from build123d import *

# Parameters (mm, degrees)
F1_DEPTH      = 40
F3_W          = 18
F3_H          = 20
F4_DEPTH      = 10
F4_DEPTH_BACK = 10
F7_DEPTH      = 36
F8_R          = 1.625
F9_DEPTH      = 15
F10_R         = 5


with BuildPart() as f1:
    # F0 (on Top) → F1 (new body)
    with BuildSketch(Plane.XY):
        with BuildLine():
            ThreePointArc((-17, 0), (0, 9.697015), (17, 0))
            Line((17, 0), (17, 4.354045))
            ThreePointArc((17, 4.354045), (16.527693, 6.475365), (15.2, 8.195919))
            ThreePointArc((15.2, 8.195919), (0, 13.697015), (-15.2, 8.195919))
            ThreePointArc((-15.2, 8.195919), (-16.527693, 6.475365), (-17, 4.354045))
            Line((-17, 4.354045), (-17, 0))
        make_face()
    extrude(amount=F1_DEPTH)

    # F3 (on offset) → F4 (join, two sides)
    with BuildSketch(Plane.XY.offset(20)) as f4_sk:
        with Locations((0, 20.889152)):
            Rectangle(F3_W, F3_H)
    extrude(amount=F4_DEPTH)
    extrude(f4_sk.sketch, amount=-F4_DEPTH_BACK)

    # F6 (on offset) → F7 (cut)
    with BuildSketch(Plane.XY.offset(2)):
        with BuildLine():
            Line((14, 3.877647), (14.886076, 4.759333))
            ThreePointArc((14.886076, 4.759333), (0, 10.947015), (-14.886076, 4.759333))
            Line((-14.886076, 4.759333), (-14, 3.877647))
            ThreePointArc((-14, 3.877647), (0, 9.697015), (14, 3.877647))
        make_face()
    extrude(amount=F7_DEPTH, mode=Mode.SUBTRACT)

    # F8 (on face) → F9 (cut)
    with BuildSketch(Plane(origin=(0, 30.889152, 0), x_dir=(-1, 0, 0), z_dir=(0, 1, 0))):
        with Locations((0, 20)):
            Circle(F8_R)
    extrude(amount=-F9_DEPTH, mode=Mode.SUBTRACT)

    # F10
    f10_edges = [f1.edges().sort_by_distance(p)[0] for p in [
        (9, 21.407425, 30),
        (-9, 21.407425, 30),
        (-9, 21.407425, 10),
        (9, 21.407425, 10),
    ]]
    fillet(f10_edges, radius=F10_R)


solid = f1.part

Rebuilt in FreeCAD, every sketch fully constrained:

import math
import FreeCAD as App
import Part
import Sketcher
from FreeCAD import Vector


def edges_at(feature, points):
    """Names of the edges that pass closest to the given points."""
    edges = feature.Shape.Edges
    near = lambda p: min(range(len(edges)), key=lambda i: edges[i].distToShape(Part.Vertex(*p))[0])
    return sorted({f"Edge{near(p) + 1}" for p in points})

doc = App.newDocument("Part")
params = doc.addObject("Spreadsheet::Sheet", "Params")
for row, (alias, value) in enumerate([
    ("sketch1_radius", "19.75 mm"),
    ("sketch1_radius2", "23.75 mm"),
    ("pad1_length", "40 mm"),
    ("sketch2_width", "18 mm"),
    ("sketch2_height", "20 mm"),
    ("pad2_length", "10 mm"),
    ("pad2_length2", "10 mm"),
    ("sketch3_radius", "21.000002 mm"),
    ("sketch3_radius2", "19.750001 mm"),
    ("pocket1_length", "36 mm"),
    ("sketch4_diameter", "3.25 mm"),
    ("pocket2_length", "15 mm"),
    ("fillet_radius", "5 mm"),
], start=1):
    params.set(f"A{row}", alias)
    params.set(f"B{row}", "=" + value)
    params.setAlias(f"B{row}", alias)

body = doc.addObject("PartDesign::Body", "Body")

sketch1 = body.newObject("Sketcher::SketchObject", "Sketch")
sketch1.AttachmentSupport = (doc.getObject("XY_Plane"), [""])
sketch1.MapMode = "FlatFace"
sketch1.addGeometry(Part.ArcOfCircle(Part.Circle(Vector(0, -10.1, 0), Vector(0, 0, 1), 19.8), math.radians(31), math.radians(149)), False)
sketch1.addGeometry(Part.LineSegment(Vector(17, 0, 0), Vector(17, 4.4, 0)), False)
sketch1.addGeometry(Part.ArcOfCircle(Part.Circle(Vector(12, 4.4, 0), Vector(0, 0, 1), 5), math.radians(0), math.radians(50)), False)
sketch1.addGeometry(Part.ArcOfCircle(Part.Circle(Vector(0, -10.1, 0), Vector(0, 0, 1), 23.7), math.radians(50), math.radians(130)), False)
sketch1.addGeometry(Part.ArcOfCircle(Part.Circle(Vector(-12, 4.4, 0), Vector(0, 0, 1), 5), math.radians(130), math.radians(180)), False)
sketch1.addGeometry(Part.LineSegment(Vector(-17, 4.4, 0), Vector(-17, 0, 0)), False)
sketch1.addConstraint(Sketcher.Constraint("Coincident", 0, 1, 1, 1))
sketch1.addConstraint(Sketcher.Constraint("Tangent", 1, 2, 2, 1))
sketch1.addConstraint(Sketcher.Constraint("Tangent", 2, 2, 3, 1))
sketch1.addConstraint(Sketcher.Constraint("Tangent", 3, 2, 4, 1))
sketch1.addConstraint(Sketcher.Constraint("Tangent", 4, 2, 5, 1))
sketch1.addConstraint(Sketcher.Constraint("Coincident", 5, 2, 0, 2))
sketch1.addConstraint(Sketcher.Constraint("Vertical", 1))
sketch1.addConstraint(Sketcher.Constraint("Vertical", 5))
sketch1.addConstraint(Sketcher.Constraint("Coincident", 3, 3, 0, 3))
sketch1.addConstraint(Sketcher.Constraint("Equal", 2, 4))
sketch1.addConstraint(Sketcher.Constraint("Symmetric", 0, 1, 5, 2, -1, 1))
sketch1.addConstraint(Sketcher.Constraint("PointOnObject", 0, 3, -2))
sketch1.addConstraint(Sketcher.Constraint("Radius", 0, 19.75))
sketch1.addConstraint(Sketcher.Constraint("Radius", 3, 23.75))
sketch1.addConstraint(Sketcher.Constraint("DistanceX", -1, 1, 0, 1, 17.0))
sketch1.addConstraint(Sketcher.Constraint("DistanceX", -1, 1, 2, 2, 15.2))
sketch1.setExpression("Constraints[12]", "Params.sketch1_radius")
sketch1.setExpression("Constraints[13]", "Params.sketch1_radius2")
pad1 = body.newObject("PartDesign::Pad", "Pad")
pad1.Profile = sketch1
pad1.setExpression("Length", "Params.pad1_length")

sketch2 = body.newObject("Sketcher::SketchObject", "Sketch001")
sketch2.AttachmentSupport = (doc.getObject("XY_Plane"), [""])
sketch2.MapMode = "FlatFace"
sketch2.AttachmentOffset = App.Placement(Vector(0, 0, 20), App.Rotation())
sketch2.addGeometry(Part.LineSegment(Vector(-9, 31, 0), Vector(-9, 11, 0)), False)
sketch2.addGeometry(Part.LineSegment(Vector(-9, 11, 0), Vector(9, 11, 0)), False)
sketch2.addGeometry(Part.LineSegment(Vector(9, 11, 0), Vector(9, 31, 0)), False)
sketch2.addGeometry(Part.LineSegment(Vector(9, 31, 0), Vector(-9, 31, 0)), False)
sketch2.addConstraint(Sketcher.Constraint("Coincident", 0, 2, 1, 1))
sketch2.addConstraint(Sketcher.Constraint("Coincident", 1, 2, 2, 1))
sketch2.addConstraint(Sketcher.Constraint("Coincident", 2, 2, 3, 1))
sketch2.addConstraint(Sketcher.Constraint("Coincident", 3, 2, 0, 1))
sketch2.addConstraint(Sketcher.Constraint("Vertical", 0))
sketch2.addConstraint(Sketcher.Constraint("Horizontal", 1))
sketch2.addConstraint(Sketcher.Constraint("Vertical", 2))
sketch2.addConstraint(Sketcher.Constraint("Horizontal", 3))
sketch2.addConstraint(Sketcher.Constraint("DistanceX", 1, 1, 1, 2, 18.0))
sketch2.addConstraint(Sketcher.Constraint("DistanceY", 0, 2, 0, 1, 20.0))
sketch2.addConstraint(Sketcher.Constraint("DistanceX", 0, 2, -1, 1, 9.0))
sketch2.addConstraint(Sketcher.Constraint("DistanceY", -1, 1, 0, 2, 10.889152))
sketch2.setExpression("Constraints[8]", "Params.sketch2_width")
sketch2.setExpression("Constraints[9]", "Params.sketch2_height")
pad2 = body.newObject("PartDesign::Pad", "Pad001")
pad2.Profile = sketch2
pad2.Type = "TwoLengths"
pad2.setExpression("Length", "Params.pad2_length")
pad2.setExpression("Length2", "Params.pad2_length2")

sketch3 = body.newObject("Sketcher::SketchObject", "Sketch002")
sketch3.AttachmentSupport = (doc.getObject("XY_Plane"), [""])
sketch3.MapMode = "FlatFace"
sketch3.AttachmentOffset = App.Placement(Vector(0, 0, 2), App.Rotation())
sketch3.addGeometry(Part.LineSegment(Vector(14, 3.9, 0), Vector(14.9, 4.8, 0)), False)
sketch3.addGeometry(Part.ArcOfCircle(Part.Circle(Vector(0, -10.1, 0), Vector(0, 0, 1), 21), math.radians(45), math.radians(135)), False)
sketch3.addGeometry(Part.LineSegment(Vector(-14.9, 4.8, 0), Vector(-14, 3.9, 0)), False)
sketch3.addGeometry(Part.ArcOfCircle(Part.Circle(Vector(0, -10.1, 0), Vector(0, 0, 1), 19.8), math.radians(45), math.radians(135)), False)
sketch3.addConstraint(Sketcher.Constraint("Coincident", 0, 2, 1, 1))
sketch3.addConstraint(Sketcher.Constraint("Coincident", 1, 2, 2, 1))
sketch3.addConstraint(Sketcher.Constraint("Coincident", 2, 2, 3, 2))
sketch3.addConstraint(Sketcher.Constraint("Coincident", 3, 1, 0, 1))
sketch3.addConstraint(Sketcher.Constraint("Coincident", 3, 3, 1, 3))
sketch3.addConstraint(Sketcher.Constraint("Symmetric", 0, 2, 1, 2, -2))
sketch3.addConstraint(Sketcher.Constraint("Horizontal", 2, 2, 3, 1))
sketch3.addConstraint(Sketcher.Constraint("Radius", 1, 21.000002))
sketch3.addConstraint(Sketcher.Constraint("Radius", 3, 19.750001))
sketch3.addConstraint(Sketcher.Constraint("DistanceX", 2, 2, -1, 1, 14.0))
sketch3.addConstraint(Sketcher.Constraint("DistanceY", 3, 3, 0, 2, 14.812319))
sketch3.addConstraint(Sketcher.Constraint("DistanceY", 1, 3, -1, 1, 10.052987))
sketch3.setExpression("Constraints[7]", "Params.sketch3_radius")
sketch3.setExpression("Constraints[8]", "Params.sketch3_radius2")
pocket1 = body.newObject("PartDesign::Pocket", "Pocket")
pocket1.Profile = sketch3
pocket1.setExpression("Length", "Params.pocket1_length")
pocket1.Reversed = True

sketch4 = body.newObject("Sketcher::SketchObject", "Sketch003")
sketch4.AttachmentSupport = (doc.getObject("XZ_Plane"), [""])
sketch4.MapMode = "FlatFace"
sketch4.AttachmentOffset = App.Placement(Vector(0, 0, -30.889152), App.Rotation())
sketch4.addGeometry(Part.Circle(Vector(0, 20, 0), Vector(0, 0, 1), 1.6), False)
sketch4.addConstraint(Sketcher.Constraint("PointOnObject", 0, 3, -2))
sketch4.addConstraint(Sketcher.Constraint("Diameter", 0, 3.25))
sketch4.addConstraint(Sketcher.Constraint("DistanceY", -1, 1, 0, 3, 20.0))
sketch4.setExpression("Constraints[1]", "Params.sketch4_diameter")
pocket2 = body.newObject("PartDesign::Pocket", "Pocket001")
pocket2.Profile = sketch4
pocket2.setExpression("Length", "Params.pocket2_length")
pocket2.Reversed = True
doc.recompute()

fillet = body.newObject("PartDesign::Fillet", "Fillet")
fillet.Base = (pocket2, edges_at(pocket2, [
    (9, 21.407, 30),
    (-9, 21.407, 30),
    (-9, 21.407, 10),
    (9, 21.407, 10),
]))
fillet.setExpression("Radius", "Params.fillet_radius")

doc.recompute()
